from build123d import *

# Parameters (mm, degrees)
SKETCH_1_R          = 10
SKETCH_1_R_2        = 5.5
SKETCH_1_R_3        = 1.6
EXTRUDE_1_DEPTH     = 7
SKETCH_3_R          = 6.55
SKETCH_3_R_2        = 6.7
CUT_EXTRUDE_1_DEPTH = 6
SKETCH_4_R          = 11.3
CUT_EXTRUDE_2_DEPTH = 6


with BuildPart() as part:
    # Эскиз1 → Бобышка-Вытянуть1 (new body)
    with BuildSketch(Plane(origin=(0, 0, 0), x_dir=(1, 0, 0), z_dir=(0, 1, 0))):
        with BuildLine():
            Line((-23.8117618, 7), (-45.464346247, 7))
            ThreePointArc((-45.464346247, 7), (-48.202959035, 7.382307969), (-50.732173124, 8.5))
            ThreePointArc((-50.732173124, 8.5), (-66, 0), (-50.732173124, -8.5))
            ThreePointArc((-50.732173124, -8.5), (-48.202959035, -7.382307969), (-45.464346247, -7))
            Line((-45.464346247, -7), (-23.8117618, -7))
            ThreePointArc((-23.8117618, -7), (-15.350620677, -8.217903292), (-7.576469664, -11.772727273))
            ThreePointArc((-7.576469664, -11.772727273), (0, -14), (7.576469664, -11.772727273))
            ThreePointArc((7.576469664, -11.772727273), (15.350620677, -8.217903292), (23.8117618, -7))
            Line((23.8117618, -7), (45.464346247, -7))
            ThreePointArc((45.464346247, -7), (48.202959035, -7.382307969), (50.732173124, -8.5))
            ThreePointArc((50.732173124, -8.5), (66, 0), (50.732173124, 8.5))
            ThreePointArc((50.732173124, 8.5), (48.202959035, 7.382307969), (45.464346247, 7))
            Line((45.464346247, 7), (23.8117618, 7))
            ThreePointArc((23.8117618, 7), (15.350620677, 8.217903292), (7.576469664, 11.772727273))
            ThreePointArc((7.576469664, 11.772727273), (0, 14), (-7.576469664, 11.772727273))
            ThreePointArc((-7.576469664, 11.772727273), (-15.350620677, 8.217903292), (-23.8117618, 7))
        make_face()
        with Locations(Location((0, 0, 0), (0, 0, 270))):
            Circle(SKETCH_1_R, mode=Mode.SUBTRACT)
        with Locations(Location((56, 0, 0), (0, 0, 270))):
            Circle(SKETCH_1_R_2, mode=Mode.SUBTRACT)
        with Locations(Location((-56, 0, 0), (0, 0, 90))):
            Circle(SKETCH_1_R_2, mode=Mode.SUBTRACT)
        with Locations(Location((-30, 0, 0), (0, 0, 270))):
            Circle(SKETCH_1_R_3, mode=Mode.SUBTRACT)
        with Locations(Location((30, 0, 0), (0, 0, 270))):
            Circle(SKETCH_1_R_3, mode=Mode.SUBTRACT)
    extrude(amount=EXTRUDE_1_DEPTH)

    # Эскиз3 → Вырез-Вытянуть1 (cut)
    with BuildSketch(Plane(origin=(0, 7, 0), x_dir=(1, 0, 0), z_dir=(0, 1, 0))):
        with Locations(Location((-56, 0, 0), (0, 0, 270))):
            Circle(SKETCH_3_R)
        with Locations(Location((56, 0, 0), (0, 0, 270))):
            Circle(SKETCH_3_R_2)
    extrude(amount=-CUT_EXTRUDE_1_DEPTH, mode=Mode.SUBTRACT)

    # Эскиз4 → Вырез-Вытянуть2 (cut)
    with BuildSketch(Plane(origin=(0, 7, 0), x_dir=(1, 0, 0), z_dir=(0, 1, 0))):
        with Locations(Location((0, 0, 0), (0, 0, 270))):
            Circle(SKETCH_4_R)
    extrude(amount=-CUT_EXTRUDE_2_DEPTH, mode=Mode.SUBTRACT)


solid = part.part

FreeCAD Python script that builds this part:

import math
import FreeCAD as App
import Part
import Sketcher
from FreeCAD import Vector

doc = App.newDocument("Part")
body = doc.addObject("PartDesign::Body", "Body")

# Sketch on XZ plane
sketch1 = doc.addObject("Sketcher::SketchObject", "Sketch")
body.addObject(sketch1)
sketch1.AttachmentSupport = (doc.XZ_Plane, [""])
sketch1.MapMode = "FlatFace"
sketch1.addGeometry([
    Part.LineSegment(Vector(-23.8, -7, 0), Vector(-45.5, -7, 0)),  # 0
    Part.ArcOfCircle(Part.Circle(Vector(-45.5, -17, 0), Vector(0, 0, 1), 10), math.radians(90), math.radians(122)),  # 1
    Part.ArcOfCircle(Part.Circle(Vector(-56, 0, 0), Vector(0, 0, 1), 10), math.radians(58), math.radians(302)),  # 2
    Part.ArcOfCircle(Part.Circle(Vector(-45.5, 17, 0), Vector(0, 0, 1), 10), math.radians(-122), math.radians(-90)),  # 3
    Part.LineSegment(Vector(-45.5, 7, 0), Vector(-23.8, 7, 0)),  # 4
    Part.ArcOfCircle(Part.Circle(Vector(-23.8, 37, 0), Vector(0, 0, 1), 30), math.radians(-90), math.radians(-57)),  # 5
    Part.ArcOfCircle(Part.Circle(Vector(0, 0, 0), Vector(0, 0, 1), 14), math.radians(57), math.radians(123)),  # 6
    Part.ArcOfCircle(Part.Circle(Vector(23.8, 37, 0), Vector(0, 0, 1), 30), math.radians(-123), math.radians(-90)),  # 7
    Part.LineSegment(Vector(23.8, 7, 0), Vector(45.5, 7, 0)),  # 8
    Part.ArcOfCircle(Part.Circle(Vector(45.5, 17, 0), Vector(0, 0, 1), 10), math.radians(-90), math.radians(-58)),  # 9
    Part.ArcOfCircle(Part.Circle(Vector(56, 0, 0), Vector(0, 0, 1), 10), math.radians(-122), math.radians(122)),  # 10
    Part.ArcOfCircle(Part.Circle(Vector(45.5, -17, 0), Vector(0, 0, 1), 10), math.radians(58), math.radians(90)),  # 11
    Part.LineSegment(Vector(45.5, -7, 0), Vector(23.8, -7, 0)),  # 12
    Part.ArcOfCircle(Part.Circle(Vector(23.8, -37, 0), Vector(0, 0, 1), 30), math.radians(90), math.radians(123)),  # 13
    Part.ArcOfCircle(Part.Circle(Vector(0, 0, 0), Vector(0, 0, 1), 14), math.radians(-123), math.radians(-57)),  # 14
    Part.ArcOfCircle(Part.Circle(Vector(-23.8, -37, 0), Vector(0, 0, 1), 30), math.radians(57), math.radians(90)),  # 15
    Part.Circle(Vector(-56, 0, 0), Vector(0, 0, 1), 5.5),  # 16
    Part.Circle(Vector(-30, 0, 0), Vector(0, 0, 1), 1.6),  # 17
    Part.Circle(Vector(0, 0, 0), Vector(0, 0, 1), 10),  # 18
    Part.Circle(Vector(30, 0, 0), Vector(0, 0, 1), 1.6),  # 19
    Part.Circle(Vector(56, 0, 0), Vector(0, 0, 1), 5.5),  # 20
], False)
sketch1.addConstraint([
    Sketcher.Constraint("Tangent", 0, 2, 1, 1),
    Sketcher.Constraint("Tangent", 1, 2, 2, 2),
    Sketcher.Constraint("Tangent", 2, 1, 3, 1),
    Sketcher.Constraint("Tangent", 3, 2, 4, 1),
    Sketcher.Constraint("Tangent", 4, 2, 5, 1),
    Sketcher.Constraint("Tangent", 5, 2, 6, 2),
    Sketcher.Constraint("Tangent", 6, 1, 7, 1),
    Sketcher.Constraint("Tangent", 7, 2, 8, 1),
    Sketcher.Constraint("Tangent", 8, 2, 9, 1),
    Sketcher.Constraint("Tangent", 9, 2, 10, 2),
    Sketcher.Constraint("Tangent", 10, 1, 11, 1),
    Sketcher.Constraint("Tangent", 11, 2, 12, 1),
    Sketcher.Constraint("Tangent", 12, 2, 13, 1),
    Sketcher.Constraint("Tangent", 13, 2, 14, 2),
    Sketcher.Constraint("Tangent", 14, 1, 15, 1),
    Sketcher.Constraint("Tangent", 15, 2, 0, 1),
    Sketcher.Constraint("Horizontal", 0),
    Sketcher.Constraint("Horizontal", 4),
    Sketcher.Constraint("Horizontal", 8),
    Sketcher.Constraint("Horizontal", 12),
    Sketcher.Constraint("Coincident", 6, 3, -1, 1),
    Sketcher.Constraint("Coincident", 14, 3, -1, 1),
    Sketcher.Constraint("Coincident", 18, 3, -1, 1),
    Sketcher.Constraint("Coincident", 16, 3, 2, 3),
    Sketcher.Constraint("Coincident", 20, 3, 10, 3),
    Sketcher.Constraint("Equal", 1, 2),
    Sketcher.Constraint("Equal", 2, 3),
    Sketcher.Constraint("Equal", 5, 7),
    Sketcher.Constraint("Equal", 3, 9),
    Sketcher.Constraint("Equal", 9, 10),
    Sketcher.Constraint("Equal", 10, 11),
    Sketcher.Constraint("Equal", 7, 13),
    Sketcher.Constraint("Equal", 6, 14),
    Sketcher.Constraint("Equal", 13, 15),
    Sketcher.Constraint("Equal", 11, 18),
    Sketcher.Constraint("Equal", 17, 19),
    Sketcher.Constraint("Equal", 16, 20),
    Sketcher.Constraint("Symmetric", 1, 3, 9, 3, -1, 1),
    Sketcher.Constraint("Symmetric", 3, 3, 11, 3, -1, 1),
    Sketcher.Constraint("Symmetric", 17, 3, 19, 3, -1, 1),
    Sketcher.Constraint("Symmetric", 3, 3, 9, 3, -2),
    Sketcher.Constraint("PointOnObject", 17, 3, -1),
    Sketcher.Constraint("Diameter", 16, 11.0),
    Sketcher.Constraint("Diameter", 18, 20.0),
    Sketcher.Constraint("Radius", 5, 30.0),
    Sketcher.Constraint("Radius", 6, 14.0),
    Sketcher.Constraint("Diameter", 17, 3.2),
    Sketcher.Constraint("DistanceY", 1, 3, -1, 1, 17.0),
    Sketcher.Constraint("DistanceX", 2, 3, -1, 1, 56.0),
    Sketcher.Constraint("DistanceX", 17, 3, -1, 1, 30.0),
])
pad1 = doc.addObject("PartDesign::Pad", "Pad")
body.addObject(pad1)
pad1.Profile = sketch1
pad1.Length = 7
pad1.Reversed = True

# Sketch on XZ plane
sketch2 = doc.addObject("Sketcher::SketchObject", "Sketch001")
body.addObject(sketch2)
sketch2.AttachmentSupport = (doc.XZ_Plane, [""])
sketch2.MapMode = "FlatFace"
sketch2.AttachmentOffset = App.Placement(Vector(0, 0, -7), App.Rotation())
sketch2.addGeometry([
    Part.Circle(Vector(-56, 0, 0), Vector(0, 0, 1), 7),
    Part.Circle(Vector(56, 0, 0), Vector(0, 0, 1), 7),
], False)
sketch2.addConstraint([
    Sketcher.Constraint("Symmetric", 0, 3, 1, 3, -1, 1),
    Sketcher.Constraint("PointOnObject", 0, 3, -1),
    Sketcher.Constraint("Diameter", 0, 13.1),
    Sketcher.Constraint("Diameter", 1, 13.4),
    Sketcher.Constraint("DistanceX", 0, 3, -1, 1, 56.0),
])
pocket1 = doc.addObject("PartDesign::Pocket", "Pocket")
body.addObject(pocket1)
pocket1.Profile = sketch2
pocket1.Length = 6
pocket1.Reversed = True

# Sketch on XZ plane
sketch3 = doc.addObject("Sketcher::SketchObject", "Sketch002")
body.addObject(sketch3)
sketch3.AttachmentSupport = (doc.XZ_Plane, [""])
sketch3.MapMode = "FlatFace"
sketch3.AttachmentOffset = App.Placement(Vector(0, 0, -7), App.Rotation())
sketch3.addGeometry(Part.Circle(Vector(0, 0, 0), Vector(0, 0, 1), 11), False)
sketch3.addConstraint([
    Sketcher.Constraint("Coincident", 0, 3, -1, 1),
    Sketcher.Constraint("Diameter", 0, 22.6),
])
pocket2 = doc.addObject("PartDesign::Pocket", "Pocket001")
body.addObject(pocket2)
pocket2.Profile = sketch3
pocket2.Length = 6
pocket2.Reversed = True

doc.recompute()
